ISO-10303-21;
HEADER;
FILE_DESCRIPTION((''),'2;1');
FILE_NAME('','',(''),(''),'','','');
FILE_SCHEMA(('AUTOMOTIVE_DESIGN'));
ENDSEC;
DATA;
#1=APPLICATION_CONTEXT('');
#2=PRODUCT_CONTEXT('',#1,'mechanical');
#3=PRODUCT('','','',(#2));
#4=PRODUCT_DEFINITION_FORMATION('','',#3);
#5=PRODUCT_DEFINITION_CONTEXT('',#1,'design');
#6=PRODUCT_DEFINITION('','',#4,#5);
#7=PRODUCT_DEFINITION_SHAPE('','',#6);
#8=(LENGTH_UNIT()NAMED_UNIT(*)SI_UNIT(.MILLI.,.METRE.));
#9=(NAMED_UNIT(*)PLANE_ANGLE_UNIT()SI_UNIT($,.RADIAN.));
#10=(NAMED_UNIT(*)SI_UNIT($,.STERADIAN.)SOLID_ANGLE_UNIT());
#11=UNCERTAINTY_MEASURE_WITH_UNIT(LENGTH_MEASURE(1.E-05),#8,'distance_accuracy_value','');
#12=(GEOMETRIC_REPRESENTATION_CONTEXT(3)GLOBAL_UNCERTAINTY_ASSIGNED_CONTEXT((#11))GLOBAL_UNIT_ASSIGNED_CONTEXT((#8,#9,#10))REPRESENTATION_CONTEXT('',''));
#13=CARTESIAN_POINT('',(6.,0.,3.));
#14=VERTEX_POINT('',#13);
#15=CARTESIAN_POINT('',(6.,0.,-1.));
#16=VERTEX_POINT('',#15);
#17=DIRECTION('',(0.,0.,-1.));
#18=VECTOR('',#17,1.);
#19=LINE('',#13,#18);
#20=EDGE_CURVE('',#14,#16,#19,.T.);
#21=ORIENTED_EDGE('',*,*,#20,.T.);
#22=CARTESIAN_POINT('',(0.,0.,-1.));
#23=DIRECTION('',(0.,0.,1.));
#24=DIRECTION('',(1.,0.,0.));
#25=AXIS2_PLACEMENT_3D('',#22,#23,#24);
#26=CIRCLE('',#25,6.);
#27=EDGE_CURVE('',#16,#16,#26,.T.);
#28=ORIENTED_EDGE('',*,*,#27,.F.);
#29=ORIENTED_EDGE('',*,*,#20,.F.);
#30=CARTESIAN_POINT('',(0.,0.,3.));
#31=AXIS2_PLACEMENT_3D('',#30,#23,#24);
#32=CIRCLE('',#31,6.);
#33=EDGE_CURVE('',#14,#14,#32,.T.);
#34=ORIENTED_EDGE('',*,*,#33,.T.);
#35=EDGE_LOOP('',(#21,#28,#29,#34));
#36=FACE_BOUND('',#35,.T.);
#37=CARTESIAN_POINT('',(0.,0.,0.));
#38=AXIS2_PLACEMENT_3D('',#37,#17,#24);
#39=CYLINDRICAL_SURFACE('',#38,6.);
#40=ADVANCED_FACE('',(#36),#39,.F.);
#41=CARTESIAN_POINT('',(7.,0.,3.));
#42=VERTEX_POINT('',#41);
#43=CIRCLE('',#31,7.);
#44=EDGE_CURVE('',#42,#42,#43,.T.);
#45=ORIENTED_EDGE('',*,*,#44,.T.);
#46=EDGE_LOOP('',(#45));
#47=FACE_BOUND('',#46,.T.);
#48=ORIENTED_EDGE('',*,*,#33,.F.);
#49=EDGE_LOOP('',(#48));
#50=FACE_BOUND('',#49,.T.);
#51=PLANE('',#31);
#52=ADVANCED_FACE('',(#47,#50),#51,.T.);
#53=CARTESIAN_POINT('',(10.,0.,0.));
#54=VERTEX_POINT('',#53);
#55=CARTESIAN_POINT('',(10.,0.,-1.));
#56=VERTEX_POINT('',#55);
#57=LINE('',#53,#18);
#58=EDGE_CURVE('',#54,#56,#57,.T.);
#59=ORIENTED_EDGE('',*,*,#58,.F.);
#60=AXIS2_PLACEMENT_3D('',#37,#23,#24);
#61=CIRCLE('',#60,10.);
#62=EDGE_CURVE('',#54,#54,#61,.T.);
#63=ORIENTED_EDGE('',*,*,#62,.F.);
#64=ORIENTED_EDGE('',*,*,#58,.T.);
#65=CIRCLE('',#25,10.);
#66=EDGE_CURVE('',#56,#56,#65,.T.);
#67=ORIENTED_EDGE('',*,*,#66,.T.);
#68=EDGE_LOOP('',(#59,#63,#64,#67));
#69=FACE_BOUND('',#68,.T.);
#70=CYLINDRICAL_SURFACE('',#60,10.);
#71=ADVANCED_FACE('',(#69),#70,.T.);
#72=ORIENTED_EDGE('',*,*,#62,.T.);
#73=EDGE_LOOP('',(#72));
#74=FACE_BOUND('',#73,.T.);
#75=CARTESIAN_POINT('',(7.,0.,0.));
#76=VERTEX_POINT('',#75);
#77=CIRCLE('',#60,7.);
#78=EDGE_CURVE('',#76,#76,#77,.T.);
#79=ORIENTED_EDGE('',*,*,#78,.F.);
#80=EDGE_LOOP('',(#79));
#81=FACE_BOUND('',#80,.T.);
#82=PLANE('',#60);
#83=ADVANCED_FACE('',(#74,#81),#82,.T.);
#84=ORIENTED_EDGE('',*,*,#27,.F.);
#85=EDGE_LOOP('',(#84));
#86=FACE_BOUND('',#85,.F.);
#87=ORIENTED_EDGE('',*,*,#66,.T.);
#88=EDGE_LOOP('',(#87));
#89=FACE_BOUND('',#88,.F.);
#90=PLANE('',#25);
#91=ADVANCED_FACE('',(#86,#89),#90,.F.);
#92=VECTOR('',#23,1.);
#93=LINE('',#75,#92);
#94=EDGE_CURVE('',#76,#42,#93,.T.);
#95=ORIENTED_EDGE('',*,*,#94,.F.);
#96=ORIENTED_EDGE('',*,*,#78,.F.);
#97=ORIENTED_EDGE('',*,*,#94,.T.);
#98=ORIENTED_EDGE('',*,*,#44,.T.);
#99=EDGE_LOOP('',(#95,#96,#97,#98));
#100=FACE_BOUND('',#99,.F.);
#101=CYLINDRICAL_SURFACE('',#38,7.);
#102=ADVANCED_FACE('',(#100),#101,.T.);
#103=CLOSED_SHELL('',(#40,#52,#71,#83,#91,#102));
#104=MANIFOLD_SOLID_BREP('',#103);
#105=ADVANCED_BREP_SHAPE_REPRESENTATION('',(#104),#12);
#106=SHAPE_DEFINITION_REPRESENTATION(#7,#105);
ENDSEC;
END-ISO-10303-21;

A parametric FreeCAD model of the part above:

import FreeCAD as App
import Part
import Sketcher

V = App.Vector

doc = App.newDocument("Part")
body = doc.addObject("PartDesign::Body", "Body")

# Sketch on XY plane
sketch1 = body.newObject("Sketcher::SketchObject", "Sketch")
sketch1.AttachmentSupport = (doc.getObject("XY_Plane"), [""])
sketch1.MapMode = "FlatFace"
sketch1.addGeometry([
    Part.Circle(V(0, 0, 0), V(0, 0, 1), 7),
    Part.Circle(V(0, 0, 0), V(0, 0, 1), 6),
], False)
sketch1.addConstraint([
    Sketcher.Constraint("Coincident", 0, 3, -1, 1),
    Sketcher.Constraint("Coincident", 1, 3, -1, 1),
    Sketcher.Constraint("Diameter", 0, 14.0),
    Sketcher.Constraint("Diameter", 1, 12.0),
])
pad1 = body.newObject("PartDesign::Pad", "Pad")
pad1.Profile = sketch1
pad1.Length = 3

# Sketch on XY plane
sketch2 = body.newObject("Sketcher::SketchObject", "Sketch001")
sketch2.AttachmentSupport = (doc.getObject("XY_Plane"), [""])
sketch2.MapMode = "FlatFace"
sketch2.addGeometry([
    Part.Circle(V(0, 0, 0), V(0, 0, 1), 10),
    Part.Circle(V(0, 0, 0), V(0, 0, 1), 6),
], False)
sketch2.addConstraint([
    Sketcher.Constraint("Coincident", 0, 3, -1, 1),
    Sketcher.Constraint("Coincident", 1, 3, -1, 1),
    Sketcher.Constraint("Diameter", 0, 20.0),
    Sketcher.Constraint("Diameter", 1, 12.0),
])
pad2 = body.newObject("PartDesign::Pad", "Pad001")
pad2.Profile = sketch2
pad2.Length = 1
pad2.Reversed = True

doc.recompute()
